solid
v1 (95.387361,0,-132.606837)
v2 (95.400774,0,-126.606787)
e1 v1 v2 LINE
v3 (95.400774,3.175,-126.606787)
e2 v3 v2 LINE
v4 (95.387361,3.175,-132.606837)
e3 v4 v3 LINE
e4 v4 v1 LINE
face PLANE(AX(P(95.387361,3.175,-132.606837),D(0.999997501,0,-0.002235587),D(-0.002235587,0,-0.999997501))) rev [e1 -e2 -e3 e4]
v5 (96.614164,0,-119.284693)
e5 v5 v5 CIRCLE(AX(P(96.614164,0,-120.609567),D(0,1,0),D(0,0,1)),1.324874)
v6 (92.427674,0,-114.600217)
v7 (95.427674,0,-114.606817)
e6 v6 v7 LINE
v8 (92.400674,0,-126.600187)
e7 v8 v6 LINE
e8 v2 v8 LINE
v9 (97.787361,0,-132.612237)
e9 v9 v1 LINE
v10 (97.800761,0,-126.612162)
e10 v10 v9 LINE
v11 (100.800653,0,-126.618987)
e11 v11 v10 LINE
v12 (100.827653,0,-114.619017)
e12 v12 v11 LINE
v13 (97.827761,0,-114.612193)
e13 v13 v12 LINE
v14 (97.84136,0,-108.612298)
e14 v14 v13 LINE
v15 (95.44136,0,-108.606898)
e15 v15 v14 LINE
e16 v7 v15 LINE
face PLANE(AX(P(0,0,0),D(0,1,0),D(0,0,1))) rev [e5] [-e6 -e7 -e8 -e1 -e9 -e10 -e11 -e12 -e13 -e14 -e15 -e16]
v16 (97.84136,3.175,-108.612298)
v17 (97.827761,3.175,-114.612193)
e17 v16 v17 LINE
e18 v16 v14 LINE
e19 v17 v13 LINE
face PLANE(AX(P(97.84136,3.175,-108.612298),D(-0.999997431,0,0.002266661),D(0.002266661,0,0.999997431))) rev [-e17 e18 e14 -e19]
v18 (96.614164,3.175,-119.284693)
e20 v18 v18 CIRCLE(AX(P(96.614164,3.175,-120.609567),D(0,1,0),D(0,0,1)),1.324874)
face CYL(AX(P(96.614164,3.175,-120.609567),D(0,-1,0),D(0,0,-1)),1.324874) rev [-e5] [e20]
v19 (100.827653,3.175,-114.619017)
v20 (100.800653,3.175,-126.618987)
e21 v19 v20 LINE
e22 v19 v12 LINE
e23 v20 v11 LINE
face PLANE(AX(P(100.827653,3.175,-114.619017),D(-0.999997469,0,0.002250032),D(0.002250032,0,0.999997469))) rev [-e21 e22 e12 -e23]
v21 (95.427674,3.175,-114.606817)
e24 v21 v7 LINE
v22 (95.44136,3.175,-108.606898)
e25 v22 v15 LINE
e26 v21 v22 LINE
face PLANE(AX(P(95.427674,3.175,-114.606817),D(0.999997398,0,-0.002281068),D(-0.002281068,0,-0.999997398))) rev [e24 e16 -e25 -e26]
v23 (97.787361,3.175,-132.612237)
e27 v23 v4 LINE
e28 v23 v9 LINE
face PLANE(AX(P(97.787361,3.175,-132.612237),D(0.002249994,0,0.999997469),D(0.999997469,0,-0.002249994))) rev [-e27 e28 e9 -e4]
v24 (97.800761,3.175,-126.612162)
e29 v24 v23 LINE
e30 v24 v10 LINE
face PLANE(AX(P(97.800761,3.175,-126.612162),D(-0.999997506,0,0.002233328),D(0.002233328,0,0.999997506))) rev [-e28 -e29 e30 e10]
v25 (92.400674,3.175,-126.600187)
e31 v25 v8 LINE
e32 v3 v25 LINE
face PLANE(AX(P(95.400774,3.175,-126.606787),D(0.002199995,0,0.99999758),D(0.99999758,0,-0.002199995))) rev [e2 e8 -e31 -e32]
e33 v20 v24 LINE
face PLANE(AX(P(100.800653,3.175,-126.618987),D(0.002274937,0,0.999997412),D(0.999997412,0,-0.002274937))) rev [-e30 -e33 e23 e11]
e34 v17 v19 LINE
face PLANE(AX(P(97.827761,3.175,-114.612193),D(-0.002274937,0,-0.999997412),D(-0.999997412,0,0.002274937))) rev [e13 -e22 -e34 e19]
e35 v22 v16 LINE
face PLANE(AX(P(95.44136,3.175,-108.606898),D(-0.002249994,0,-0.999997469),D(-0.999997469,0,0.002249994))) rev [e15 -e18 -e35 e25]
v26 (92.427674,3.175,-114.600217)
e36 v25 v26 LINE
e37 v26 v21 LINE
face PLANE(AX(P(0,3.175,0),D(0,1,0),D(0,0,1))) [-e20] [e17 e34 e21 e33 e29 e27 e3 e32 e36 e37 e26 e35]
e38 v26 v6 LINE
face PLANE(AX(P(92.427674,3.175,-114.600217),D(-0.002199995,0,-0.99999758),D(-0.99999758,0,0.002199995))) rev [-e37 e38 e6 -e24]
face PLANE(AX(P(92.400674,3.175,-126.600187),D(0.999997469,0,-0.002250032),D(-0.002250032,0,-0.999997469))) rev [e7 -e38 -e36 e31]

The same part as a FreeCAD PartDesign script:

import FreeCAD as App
import Part
import Sketcher
from FreeCAD import Vector


def add_polygon(sketch, points):
    """Adds a closed chain of lines whose ends are joined by coincident constraints."""
    first, n = sketch.GeometryCount, len(points)
    for a, b in zip(points, points[1:] + points[:1]):
        sketch.addGeometry(Part.LineSegment(App.Vector(*a, 0), App.Vector(*b, 0)), False)
    for i in range(n):
        sketch.addConstraint(Sketcher.Constraint("Coincident", first + i, 2, first + (i + 1) % n, 1))

doc = App.newDocument("Part")
body = doc.addObject("PartDesign::Body", "Body")

# Sketch on XZ plane
sketch1 = body.newObject("Sketcher::SketchObject", "Sketch")
sketch1.AttachmentSupport = (doc.getObject("XZ_Plane"), [""])
sketch1.MapMode = "FlatFace"
add_polygon(sketch1, [(95.427674, -114.606817), (95.44136, -108.606898), (97.84136, -108.612298), (97.827761, -114.612193), (100.827653, -114.619017), (100.800653, -126.618987), (97.800761, -126.612162), (97.787361, -132.612237), (95.387361, -132.606837), (95.400774, -126.606787), (92.400674, -126.600187), (92.427674, -114.600217)])  # lines 0-11
sketch1.addGeometry(Part.Circle(Vector(96.614164, -120.609567, 0), Vector(0, 0, 1), 1.324874), False)  # 12
sketch1.addConstraint([
    Sketcher.Constraint("Perpendicular", 1, 4),
    Sketcher.Constraint("Parallel", 3, 5),
    Sketcher.Constraint("Perpendicular", 4, 7),
    Sketcher.Constraint("Perpendicular", 7, 10),
    Sketcher.Constraint("Parallel", 9, 11),
    Sketcher.Constraint("Equal", 3, 5),
    Sketcher.Constraint("Equal", 1, 7),
    Sketcher.Constraint("Equal", 4, 10),
    Sketcher.Constraint("Distance", 4, 12.0),
    Sketcher.Constraint("DistanceX", 10, 2, 11, 2, 3.0),
    Sketcher.Constraint("DistanceX", 0, 2, 1, 2, 2.4),
    Sketcher.Constraint("Diameter", 12, 2.649748),
    Sketcher.Constraint("DistanceX", 4, 2, 3, 2, 0.027),
    Sketcher.Constraint("Distance", 3, 2.9999),
    Sketcher.Constraint("DistanceX", 2, 2, 1, 2, 0.0136),
    Sketcher.Constraint("DistanceX", 6, 2, 5, 2, 0.0134),
    Sketcher.Constraint("DistanceY", 4, 2, 8, 2, 0.0122),
    Sketcher.Constraint("DistanceX", 9, 2, 8, 2, 3.0001),
    Sketcher.Constraint("DistanceY", 8, 2, 9, 2, 0.0066),
    Sketcher.Constraint("Distance", 2, 5.99991),
    Sketcher.Constraint("Distance", 6, 6.00009),
    Sketcher.Constraint("DistanceX", -1, 1, 0, 2, 95.44136),
    Sketcher.Constraint("DistanceY", 12, 3, 0, 2, 12.002669),
    Sketcher.Constraint("DistanceY", 3, 2, 1, 2, 6.006719),
    Sketcher.Constraint("DistanceX", 12, 3, 3, 2, 4.21349),
    Sketcher.Constraint("DistanceX", 8, 2, 4, 2, 5.399879),
    Sketcher.Constraint("DistanceY", 12, 3, -1, 1, 120.609567),
])
pad1 = body.newObject("PartDesign::Pad", "Pad")
pad1.Profile = sketch1
pad1.Length = 3.175
pad1.Reversed = True

doc.recompute()
